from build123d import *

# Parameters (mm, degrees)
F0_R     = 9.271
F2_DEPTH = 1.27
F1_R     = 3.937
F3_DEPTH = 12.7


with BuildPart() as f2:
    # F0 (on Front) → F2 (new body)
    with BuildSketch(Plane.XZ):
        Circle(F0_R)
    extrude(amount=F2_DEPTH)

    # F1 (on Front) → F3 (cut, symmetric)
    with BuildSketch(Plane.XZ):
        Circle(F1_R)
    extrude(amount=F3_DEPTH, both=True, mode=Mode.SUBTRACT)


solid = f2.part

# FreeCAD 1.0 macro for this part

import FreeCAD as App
import Part
import Sketcher
Q = App.Units.Quantity

doc = App.newDocument("Part")
body = doc.addObject("PartDesign::Body", "Body")

sketch1 = body.newObject("Sketcher::SketchObject", "Sketch")
sketch1.AttachmentSupport = (doc.getObject("XZ_Plane"), [""])
sketch1.MapMode = "FlatFace"
sketch1.addGeometry(Part.Circle(App.Vector(0, 0, 0), App.Vector(0, 0, 1), 9.271), False)
sketch1.addConstraint([
    Sketcher.Constraint("Coincident", 0, 3, -1, 1),
    Sketcher.Constraint("Diameter", 0, Q("0.73 in")),
])
pad1 = body.newObject("PartDesign::Pad", "Pad")
pad1.Profile = sketch1
pad1.Length = Q("0.05 in")

sketch2 = body.newObject("Sketcher::SketchObject", "Sketch001")
sketch2.AttachmentSupport = (doc.getObject("XZ_Plane"), [""])
sketch2.MapMode = "FlatFace"
sketch2.addGeometry(Part.Circle(App.Vector(0, 0, 0), App.Vector(0, 0, 1), 3.937), False)
sketch2.addConstraint([
    Sketcher.Constraint("Coincident", 0, 3, -1, 1),
    Sketcher.Constraint("Diameter", 0, Q("0.31 in")),
])
pocket1 = body.newObject("PartDesign::Pocket", "Pocket")
pocket1.Profile = sketch2
pocket1.Length = Q("1 in")
pocket1.Midplane = True

doc.recompute()
